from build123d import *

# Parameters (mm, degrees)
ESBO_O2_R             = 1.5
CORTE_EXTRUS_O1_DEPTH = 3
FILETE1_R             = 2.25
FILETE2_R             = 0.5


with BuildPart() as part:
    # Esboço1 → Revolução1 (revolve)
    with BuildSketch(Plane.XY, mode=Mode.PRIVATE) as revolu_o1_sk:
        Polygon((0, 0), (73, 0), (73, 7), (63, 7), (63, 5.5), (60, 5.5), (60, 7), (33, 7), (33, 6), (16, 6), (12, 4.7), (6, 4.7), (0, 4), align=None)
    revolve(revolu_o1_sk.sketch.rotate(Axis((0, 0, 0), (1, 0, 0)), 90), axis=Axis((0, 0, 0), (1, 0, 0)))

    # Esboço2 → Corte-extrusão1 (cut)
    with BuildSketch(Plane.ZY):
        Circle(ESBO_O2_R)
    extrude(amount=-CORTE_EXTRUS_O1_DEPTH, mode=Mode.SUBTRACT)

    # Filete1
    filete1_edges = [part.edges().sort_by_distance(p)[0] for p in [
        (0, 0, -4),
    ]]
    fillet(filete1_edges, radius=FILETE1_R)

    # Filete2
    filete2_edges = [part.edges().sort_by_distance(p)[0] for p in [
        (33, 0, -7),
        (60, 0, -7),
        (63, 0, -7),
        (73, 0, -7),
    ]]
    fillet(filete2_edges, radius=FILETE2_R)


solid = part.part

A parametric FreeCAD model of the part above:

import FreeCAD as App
import Part
import Sketcher
from FreeCAD import Vector
Q = App.Units.Quantity


def edges_at(feature, points):
    """Names of the edges that pass closest to the given points."""
    edges = feature.Shape.Edges
    near = lambda p: min(range(len(edges)), key=lambda i: edges[i].distToShape(Part.Vertex(*p))[0])
    return sorted({f"Edge{near(p) + 1}" for p in points})

doc = App.newDocument("Part")
body = doc.addObject("PartDesign::Body", "Body")

sketch1 = body.newObject("Sketcher::SketchObject", "Sketch")
sketch1.AttachmentSupport = (doc.getObject("XY_Plane"), [""])
sketch1.MapMode = "FlatFace"
sketch1.addGeometry([
    Part.LineSegment(Vector(0, 0, 0), Vector(73, 0, 0)),
    Part.LineSegment(Vector(73, 0, 0), Vector(73, 7, 0)),
    Part.LineSegment(Vector(73, 7, 0), Vector(63, 7, 0)),
    Part.LineSegment(Vector(63, 7, 0), Vector(63, 5.5, 0)),
    Part.LineSegment(Vector(63, 5.5, 0), Vector(60, 5.5, 0)),
    Part.LineSegment(Vector(60, 5.5, 0), Vector(60, 7, 0)),
    Part.LineSegment(Vector(60, 7, 0), Vector(33, 7, 0)),
    Part.LineSegment(Vector(33, 7, 0), Vector(33, 6, 0)),
    Part.LineSegment(Vector(33, 6, 0), Vector(16, 6, 0)),
    Part.LineSegment(Vector(16, 6, 0), Vector(12, 4.7, 0)),
    Part.LineSegment(Vector(12, 4.7, 0), Vector(6, 4.7, 0)),
    Part.LineSegment(Vector(6, 4.7, 0), Vector(0, 4, 0)),
    Part.LineSegment(Vector(0, 4, 0), Vector(0, 0, 0)),
], False)
sketch1.addConstraint([
    Sketcher.Constraint("Coincident", 0, 2, 1, 1),
    Sketcher.Constraint("Coincident", 1, 2, 2, 1),
    Sketcher.Constraint("Coincident", 2, 2, 3, 1),
    Sketcher.Constraint("Coincident", 3, 2, 4, 1),
    Sketcher.Constraint("Coincident", 4, 2, 5, 1),
    Sketcher.Constraint("Coincident", 5, 2, 6, 1),
    Sketcher.Constraint("Coincident", 6, 2, 7, 1),
    Sketcher.Constraint("Coincident", 7, 2, 8, 1),
    Sketcher.Constraint("Coincident", 8, 2, 9, 1),
    Sketcher.Constraint("Coincident", 9, 2, 10, 1),
    Sketcher.Constraint("Coincident", 10, 2, 11, 1),
    Sketcher.Constraint("Coincident", 11, 2, 12, 1),
    Sketcher.Constraint("Coincident", 12, 2, 0, 1),
    Sketcher.Constraint("Horizontal", 0),
    Sketcher.Constraint("Vertical", 1),
    Sketcher.Constraint("Horizontal", 2),
    Sketcher.Constraint("Vertical", 3),
    Sketcher.Constraint("Horizontal", 4),
    Sketcher.Constraint("Vertical", 5),
    Sketcher.Constraint("Horizontal", 6),
    Sketcher.Constraint("Vertical", 7),
    Sketcher.Constraint("Horizontal", 8),
    Sketcher.Constraint("Horizontal", 10),
    Sketcher.Constraint("Vertical", 12),
    Sketcher.Constraint("Coincident", 12, 2, -1, 1),
    Sketcher.Constraint("Horizontal", 2, 2, 5, 2),
    Sketcher.Constraint("DistanceX", 0, 1, 0, 2, Q("73 mm")),
    Sketcher.Constraint("DistanceX", 2, 2, 2, 1, Q("10 mm")),
    Sketcher.Constraint("DistanceX", 4, 2, 4, 1, Q("3 mm")),
    Sketcher.Constraint("DistanceX", 6, 2, 6, 1, Q("27 mm")),
    Sketcher.Constraint("DistanceX", 8, 2, 8, 1, Q("17 mm")),
    Sketcher.Constraint("DistanceX", 10, 2, 10, 1, Q("6 mm")),
    Sketcher.Constraint("DistanceY", 1, 1, 1, 2, Q("7 mm")),
    Sketcher.Constraint("DistanceY", 7, 2, 7, 1, Q("1 mm")),
    Sketcher.Constraint("DistanceY", 12, 2, 12, 1, Q("4 mm")),
    Sketcher.Constraint("DistanceY", 3, 2, 3, 1, Q("1.5 mm")),
    Sketcher.Constraint("DistanceX", -1, 1, 9, 2, Q("12 mm")),
    Sketcher.Constraint("DistanceY", -1, 1, 9, 2, Q("4.7 mm")),
])
revolution = body.newObject("PartDesign::Revolution", "Revolution")
revolution.Profile = sketch1
revolution.ReferenceAxis = (sketch1, ["H_Axis"])
revolution.Angle = 360

sketch2 = body.newObject("Sketcher::SketchObject", "Sketch001")
sketch2.AttachmentSupport = (doc.getObject("YZ_Plane"), [""])
sketch2.MapMode = "FlatFace"
sketch2.addGeometry(Part.Circle(Vector(0, 0, 0), Vector(0, 0, 1), 1.5), False)
sketch2.addConstraint([
    Sketcher.Constraint("Coincident", 0, 3, -1, 1),
    Sketcher.Constraint("Diameter", 0, Q("3 mm")),
])
pocket1 = body.newObject("PartDesign::Pocket", "Pocket")
pocket1.Profile = sketch2
pocket1.Length = 3
pocket1.Reversed = True
doc.recompute()

fillet = body.newObject("PartDesign::Fillet", "Fillet")
fillet.Base = (pocket1, edges_at(pocket1, [(0, 0, -4)]))
fillet.Radius = 2.25
doc.recompute()

fillet2 = body.newObject("PartDesign::Fillet", "Fillet001")
fillet2.Base = (fillet, edges_at(fillet, [
    (33, 0, -7),
    (60, 0, -7),
    (63, 0, -7),
    (73, 0, -7),
]))
fillet2.Radius = 0.5

doc.recompute()
